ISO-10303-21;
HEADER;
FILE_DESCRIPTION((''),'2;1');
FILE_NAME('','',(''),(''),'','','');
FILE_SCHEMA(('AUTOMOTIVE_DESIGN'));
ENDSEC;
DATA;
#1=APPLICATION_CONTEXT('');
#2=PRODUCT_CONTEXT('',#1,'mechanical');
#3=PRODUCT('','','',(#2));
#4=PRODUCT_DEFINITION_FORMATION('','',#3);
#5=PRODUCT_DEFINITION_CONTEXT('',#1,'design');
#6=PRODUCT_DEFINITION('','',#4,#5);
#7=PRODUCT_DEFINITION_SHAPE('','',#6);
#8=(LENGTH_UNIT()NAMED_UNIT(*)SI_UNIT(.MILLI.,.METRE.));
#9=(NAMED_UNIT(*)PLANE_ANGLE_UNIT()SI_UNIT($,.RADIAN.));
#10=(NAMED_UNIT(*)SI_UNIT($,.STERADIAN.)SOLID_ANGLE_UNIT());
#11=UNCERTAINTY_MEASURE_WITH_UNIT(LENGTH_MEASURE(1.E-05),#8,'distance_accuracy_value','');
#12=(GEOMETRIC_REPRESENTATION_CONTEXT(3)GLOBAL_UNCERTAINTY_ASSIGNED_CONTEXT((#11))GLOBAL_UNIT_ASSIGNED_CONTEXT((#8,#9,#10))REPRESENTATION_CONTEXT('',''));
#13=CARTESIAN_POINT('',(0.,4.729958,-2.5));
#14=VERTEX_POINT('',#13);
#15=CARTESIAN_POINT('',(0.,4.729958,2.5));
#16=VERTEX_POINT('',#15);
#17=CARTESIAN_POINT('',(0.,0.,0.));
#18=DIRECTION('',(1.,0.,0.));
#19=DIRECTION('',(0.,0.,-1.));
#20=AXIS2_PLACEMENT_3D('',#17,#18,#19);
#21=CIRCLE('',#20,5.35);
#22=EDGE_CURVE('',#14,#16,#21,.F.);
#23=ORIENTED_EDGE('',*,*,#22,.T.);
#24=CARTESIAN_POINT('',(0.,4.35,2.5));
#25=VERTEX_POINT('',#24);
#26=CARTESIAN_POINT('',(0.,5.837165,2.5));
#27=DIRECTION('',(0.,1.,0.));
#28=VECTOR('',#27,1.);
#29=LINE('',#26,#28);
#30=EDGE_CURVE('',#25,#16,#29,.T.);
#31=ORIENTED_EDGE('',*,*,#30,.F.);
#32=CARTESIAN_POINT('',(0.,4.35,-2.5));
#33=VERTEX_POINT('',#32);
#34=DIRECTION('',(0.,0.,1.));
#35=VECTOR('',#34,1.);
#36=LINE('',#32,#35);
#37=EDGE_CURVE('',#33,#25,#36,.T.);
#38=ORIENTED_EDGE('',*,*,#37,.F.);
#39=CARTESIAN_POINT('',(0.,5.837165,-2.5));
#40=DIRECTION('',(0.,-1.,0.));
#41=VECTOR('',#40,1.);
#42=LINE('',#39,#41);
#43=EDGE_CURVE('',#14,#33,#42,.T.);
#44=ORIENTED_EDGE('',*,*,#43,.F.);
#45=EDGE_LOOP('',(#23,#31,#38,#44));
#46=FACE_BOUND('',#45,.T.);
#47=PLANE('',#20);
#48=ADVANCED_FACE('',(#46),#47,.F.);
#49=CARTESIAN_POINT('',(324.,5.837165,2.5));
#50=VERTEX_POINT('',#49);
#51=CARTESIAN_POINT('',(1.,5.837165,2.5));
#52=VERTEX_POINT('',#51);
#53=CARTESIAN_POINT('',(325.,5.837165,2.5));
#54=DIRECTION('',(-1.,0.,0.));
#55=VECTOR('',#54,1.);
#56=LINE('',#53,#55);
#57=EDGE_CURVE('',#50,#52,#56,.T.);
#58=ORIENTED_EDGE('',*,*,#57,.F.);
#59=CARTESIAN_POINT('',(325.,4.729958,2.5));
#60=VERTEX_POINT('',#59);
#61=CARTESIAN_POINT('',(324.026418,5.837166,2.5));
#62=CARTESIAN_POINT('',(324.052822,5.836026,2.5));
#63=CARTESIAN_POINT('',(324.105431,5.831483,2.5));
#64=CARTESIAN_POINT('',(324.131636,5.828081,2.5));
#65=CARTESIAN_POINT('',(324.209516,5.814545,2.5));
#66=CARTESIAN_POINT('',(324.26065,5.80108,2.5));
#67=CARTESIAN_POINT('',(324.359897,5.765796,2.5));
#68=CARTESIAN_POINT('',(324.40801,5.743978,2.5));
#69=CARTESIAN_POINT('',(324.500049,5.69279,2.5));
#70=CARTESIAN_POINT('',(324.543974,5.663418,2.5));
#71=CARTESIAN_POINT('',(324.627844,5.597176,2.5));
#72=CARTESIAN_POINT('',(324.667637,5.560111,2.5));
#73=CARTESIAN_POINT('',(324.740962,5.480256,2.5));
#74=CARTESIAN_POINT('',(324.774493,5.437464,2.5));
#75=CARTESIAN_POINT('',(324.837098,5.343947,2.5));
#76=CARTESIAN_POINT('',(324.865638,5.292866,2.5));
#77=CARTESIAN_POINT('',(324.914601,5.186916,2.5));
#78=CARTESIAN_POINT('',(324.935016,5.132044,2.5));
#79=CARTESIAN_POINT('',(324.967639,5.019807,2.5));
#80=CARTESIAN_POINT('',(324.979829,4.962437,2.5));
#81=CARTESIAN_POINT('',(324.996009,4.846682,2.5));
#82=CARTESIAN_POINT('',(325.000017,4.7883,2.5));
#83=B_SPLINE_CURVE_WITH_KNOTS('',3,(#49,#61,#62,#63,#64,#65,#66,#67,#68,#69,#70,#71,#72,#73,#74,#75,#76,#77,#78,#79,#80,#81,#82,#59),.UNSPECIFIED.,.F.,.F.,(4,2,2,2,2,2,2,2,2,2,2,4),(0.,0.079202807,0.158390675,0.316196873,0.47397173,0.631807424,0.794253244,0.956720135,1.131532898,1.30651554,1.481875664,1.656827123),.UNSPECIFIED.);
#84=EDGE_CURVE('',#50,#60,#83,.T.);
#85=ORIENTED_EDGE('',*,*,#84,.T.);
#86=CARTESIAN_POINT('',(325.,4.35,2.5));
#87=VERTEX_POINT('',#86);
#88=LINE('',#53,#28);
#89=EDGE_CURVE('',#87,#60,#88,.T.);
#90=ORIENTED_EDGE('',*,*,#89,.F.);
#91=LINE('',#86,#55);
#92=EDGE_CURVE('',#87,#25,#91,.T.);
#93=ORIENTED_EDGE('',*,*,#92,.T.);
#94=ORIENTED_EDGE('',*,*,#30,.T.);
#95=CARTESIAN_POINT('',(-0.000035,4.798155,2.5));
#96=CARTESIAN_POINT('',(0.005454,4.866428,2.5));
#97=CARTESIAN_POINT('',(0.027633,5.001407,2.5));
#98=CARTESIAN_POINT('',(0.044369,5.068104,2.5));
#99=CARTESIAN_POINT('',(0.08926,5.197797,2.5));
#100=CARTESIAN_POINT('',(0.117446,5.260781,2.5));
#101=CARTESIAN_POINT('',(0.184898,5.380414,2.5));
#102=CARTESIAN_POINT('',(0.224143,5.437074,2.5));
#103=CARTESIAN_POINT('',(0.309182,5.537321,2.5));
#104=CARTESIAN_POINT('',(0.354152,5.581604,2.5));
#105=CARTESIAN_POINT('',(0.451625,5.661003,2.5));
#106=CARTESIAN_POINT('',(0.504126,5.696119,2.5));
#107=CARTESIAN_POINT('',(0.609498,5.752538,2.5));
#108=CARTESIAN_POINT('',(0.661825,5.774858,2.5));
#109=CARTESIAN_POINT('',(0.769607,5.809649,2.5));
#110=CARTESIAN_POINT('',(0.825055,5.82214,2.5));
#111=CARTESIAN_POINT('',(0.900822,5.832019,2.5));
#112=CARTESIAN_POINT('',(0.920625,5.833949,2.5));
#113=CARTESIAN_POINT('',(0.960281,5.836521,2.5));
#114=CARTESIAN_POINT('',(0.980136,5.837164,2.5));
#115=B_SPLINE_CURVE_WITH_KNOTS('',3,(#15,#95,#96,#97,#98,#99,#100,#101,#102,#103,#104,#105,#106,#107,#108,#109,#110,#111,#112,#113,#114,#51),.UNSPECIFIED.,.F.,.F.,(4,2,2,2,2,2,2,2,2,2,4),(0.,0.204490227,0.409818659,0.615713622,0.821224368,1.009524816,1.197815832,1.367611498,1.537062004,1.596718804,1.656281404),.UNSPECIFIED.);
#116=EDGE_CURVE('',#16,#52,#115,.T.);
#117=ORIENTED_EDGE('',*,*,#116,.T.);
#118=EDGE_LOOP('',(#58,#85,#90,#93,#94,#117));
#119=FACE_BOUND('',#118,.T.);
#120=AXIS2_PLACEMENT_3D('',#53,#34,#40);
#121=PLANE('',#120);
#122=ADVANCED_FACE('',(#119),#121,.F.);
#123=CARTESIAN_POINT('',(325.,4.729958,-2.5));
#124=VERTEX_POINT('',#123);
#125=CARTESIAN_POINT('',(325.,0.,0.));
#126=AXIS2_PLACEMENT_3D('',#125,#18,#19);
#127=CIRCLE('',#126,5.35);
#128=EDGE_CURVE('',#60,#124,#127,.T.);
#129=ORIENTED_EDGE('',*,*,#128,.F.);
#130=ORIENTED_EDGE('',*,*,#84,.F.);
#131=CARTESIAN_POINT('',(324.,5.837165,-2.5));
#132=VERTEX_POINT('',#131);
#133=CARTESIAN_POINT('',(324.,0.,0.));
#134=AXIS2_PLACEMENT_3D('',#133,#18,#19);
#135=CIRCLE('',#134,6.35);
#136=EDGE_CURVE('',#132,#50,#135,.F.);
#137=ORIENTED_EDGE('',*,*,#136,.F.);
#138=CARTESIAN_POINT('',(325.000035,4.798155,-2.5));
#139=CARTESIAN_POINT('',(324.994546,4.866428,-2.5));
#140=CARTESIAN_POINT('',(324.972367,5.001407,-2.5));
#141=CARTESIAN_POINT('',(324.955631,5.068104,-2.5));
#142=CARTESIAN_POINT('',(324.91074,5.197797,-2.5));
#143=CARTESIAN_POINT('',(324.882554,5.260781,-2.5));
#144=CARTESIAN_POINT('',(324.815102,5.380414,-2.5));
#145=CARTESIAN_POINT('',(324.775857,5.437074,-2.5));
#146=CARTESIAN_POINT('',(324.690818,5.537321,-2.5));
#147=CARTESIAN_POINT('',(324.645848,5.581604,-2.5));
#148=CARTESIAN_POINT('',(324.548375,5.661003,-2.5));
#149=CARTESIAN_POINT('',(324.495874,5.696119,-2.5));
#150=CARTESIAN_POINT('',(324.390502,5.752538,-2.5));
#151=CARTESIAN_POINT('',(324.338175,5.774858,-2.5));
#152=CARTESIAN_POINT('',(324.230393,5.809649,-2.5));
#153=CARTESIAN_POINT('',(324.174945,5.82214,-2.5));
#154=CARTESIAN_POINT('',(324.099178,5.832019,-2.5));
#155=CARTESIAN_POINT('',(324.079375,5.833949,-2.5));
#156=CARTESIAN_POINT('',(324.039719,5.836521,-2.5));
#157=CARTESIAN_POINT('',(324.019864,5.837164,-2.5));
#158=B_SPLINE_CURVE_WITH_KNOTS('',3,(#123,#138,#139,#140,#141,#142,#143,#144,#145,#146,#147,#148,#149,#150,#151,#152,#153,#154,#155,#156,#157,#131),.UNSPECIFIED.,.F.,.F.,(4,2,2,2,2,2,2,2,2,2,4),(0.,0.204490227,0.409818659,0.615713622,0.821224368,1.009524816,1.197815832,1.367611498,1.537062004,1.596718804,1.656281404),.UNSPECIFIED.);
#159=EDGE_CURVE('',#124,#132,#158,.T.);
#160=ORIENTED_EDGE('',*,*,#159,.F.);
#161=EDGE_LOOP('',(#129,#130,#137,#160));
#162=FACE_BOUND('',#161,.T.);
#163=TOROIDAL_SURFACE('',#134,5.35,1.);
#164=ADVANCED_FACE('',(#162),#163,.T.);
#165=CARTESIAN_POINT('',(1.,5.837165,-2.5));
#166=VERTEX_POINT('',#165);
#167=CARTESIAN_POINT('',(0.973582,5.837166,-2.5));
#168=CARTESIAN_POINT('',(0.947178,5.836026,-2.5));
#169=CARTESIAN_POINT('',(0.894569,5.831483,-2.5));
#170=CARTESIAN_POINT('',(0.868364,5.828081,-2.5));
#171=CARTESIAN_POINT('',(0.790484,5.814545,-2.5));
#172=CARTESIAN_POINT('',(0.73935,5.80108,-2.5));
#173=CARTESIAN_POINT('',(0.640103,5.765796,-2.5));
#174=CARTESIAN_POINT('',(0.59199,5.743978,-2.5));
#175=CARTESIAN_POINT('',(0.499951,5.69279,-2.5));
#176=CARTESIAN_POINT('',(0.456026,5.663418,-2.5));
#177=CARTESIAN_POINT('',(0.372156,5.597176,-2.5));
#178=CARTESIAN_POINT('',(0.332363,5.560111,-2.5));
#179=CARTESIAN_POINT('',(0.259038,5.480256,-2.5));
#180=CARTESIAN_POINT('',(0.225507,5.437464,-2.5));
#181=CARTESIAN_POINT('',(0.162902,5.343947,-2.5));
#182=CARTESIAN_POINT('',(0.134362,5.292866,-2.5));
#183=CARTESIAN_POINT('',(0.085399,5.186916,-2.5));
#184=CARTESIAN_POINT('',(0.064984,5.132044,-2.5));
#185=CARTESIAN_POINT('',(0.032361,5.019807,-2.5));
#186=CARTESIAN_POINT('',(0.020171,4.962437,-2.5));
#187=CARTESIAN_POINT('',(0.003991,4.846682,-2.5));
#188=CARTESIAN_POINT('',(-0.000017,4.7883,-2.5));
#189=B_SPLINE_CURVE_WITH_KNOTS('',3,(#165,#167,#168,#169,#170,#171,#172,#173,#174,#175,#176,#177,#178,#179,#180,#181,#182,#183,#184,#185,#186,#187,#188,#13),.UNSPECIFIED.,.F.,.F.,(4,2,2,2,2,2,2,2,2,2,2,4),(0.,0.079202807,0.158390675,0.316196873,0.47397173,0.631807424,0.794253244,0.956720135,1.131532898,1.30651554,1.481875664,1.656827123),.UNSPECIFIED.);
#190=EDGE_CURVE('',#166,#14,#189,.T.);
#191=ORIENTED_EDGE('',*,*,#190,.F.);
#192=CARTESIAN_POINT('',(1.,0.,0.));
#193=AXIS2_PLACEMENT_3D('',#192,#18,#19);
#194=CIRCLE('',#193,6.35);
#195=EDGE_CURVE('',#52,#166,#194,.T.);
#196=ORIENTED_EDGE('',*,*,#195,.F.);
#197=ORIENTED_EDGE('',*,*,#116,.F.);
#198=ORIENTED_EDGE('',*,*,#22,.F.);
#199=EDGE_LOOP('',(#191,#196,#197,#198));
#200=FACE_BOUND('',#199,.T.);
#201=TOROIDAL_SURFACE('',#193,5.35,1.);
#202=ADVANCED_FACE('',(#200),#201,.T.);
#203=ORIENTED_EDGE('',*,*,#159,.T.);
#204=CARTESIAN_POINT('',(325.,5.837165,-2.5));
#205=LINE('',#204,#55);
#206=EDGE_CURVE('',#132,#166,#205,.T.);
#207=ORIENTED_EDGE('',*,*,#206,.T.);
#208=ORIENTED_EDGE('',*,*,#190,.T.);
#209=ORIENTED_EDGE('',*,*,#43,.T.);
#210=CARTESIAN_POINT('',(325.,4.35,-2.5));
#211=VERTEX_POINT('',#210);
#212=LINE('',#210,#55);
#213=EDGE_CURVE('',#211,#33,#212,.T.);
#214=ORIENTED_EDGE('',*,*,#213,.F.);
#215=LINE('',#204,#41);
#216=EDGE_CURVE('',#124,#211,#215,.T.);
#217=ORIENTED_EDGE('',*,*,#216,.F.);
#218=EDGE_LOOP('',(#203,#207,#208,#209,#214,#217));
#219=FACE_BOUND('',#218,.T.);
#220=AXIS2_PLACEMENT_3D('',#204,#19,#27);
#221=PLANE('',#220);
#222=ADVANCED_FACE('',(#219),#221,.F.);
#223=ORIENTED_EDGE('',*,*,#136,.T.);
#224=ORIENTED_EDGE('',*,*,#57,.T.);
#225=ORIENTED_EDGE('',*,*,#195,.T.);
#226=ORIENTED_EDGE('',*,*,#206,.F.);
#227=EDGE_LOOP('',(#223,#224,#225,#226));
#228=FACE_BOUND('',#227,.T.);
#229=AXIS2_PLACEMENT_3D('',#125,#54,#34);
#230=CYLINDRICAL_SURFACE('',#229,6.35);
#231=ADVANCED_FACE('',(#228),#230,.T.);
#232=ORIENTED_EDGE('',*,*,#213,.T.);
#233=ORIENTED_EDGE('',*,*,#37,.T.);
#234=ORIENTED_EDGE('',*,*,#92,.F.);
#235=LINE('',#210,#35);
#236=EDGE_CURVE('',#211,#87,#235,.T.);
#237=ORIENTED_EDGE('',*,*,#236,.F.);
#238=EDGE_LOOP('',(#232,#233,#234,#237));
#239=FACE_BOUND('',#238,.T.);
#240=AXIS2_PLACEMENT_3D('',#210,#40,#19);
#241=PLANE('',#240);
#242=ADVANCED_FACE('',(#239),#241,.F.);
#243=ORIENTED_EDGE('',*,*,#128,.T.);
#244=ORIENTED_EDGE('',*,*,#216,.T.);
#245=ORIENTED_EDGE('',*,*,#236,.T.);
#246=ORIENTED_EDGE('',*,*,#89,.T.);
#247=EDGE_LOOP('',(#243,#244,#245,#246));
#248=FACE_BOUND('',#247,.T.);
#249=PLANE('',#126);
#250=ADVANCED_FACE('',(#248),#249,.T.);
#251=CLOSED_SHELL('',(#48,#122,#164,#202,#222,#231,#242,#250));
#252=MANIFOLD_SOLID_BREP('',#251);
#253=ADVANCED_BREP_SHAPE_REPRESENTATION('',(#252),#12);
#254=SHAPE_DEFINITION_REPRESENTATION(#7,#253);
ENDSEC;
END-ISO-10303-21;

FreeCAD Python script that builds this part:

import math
import FreeCAD as App
import Part
import Sketcher


def edges_at(feature, points):
    """Names of the edges that pass closest to the given points."""
    edges = feature.Shape.Edges
    near = lambda p: min(range(len(edges)), key=lambda i: edges[i].distToShape(Part.Vertex(*p))[0])
    return sorted({f"Edge{near(p) + 1}" for p in points})

doc = App.newDocument("Part")
body = doc.addObject("PartDesign::Body", "Body")

# Sketch on YZ plane
sketch1 = body.newObject("Sketcher::SketchObject", "Sketch")
sketch1.AttachmentSupport = (doc.getObject("YZ_Plane"), [""])
sketch1.MapMode = "FlatFace"
sketch1.addGeometry([
    Part.LineSegment(App.Vector(5.8, -2.5, 0), App.Vector(4.3, -2.5, 0)),
    Part.LineSegment(App.Vector(4.3, -2.5, 0), App.Vector(4.3, 2.5, 0)),
    Part.LineSegment(App.Vector(4.3, 2.5, 0), App.Vector(5.8, 2.5, 0)),
    Part.ArcOfCircle(Part.Circle(App.Vector(0, 0, 0), App.Vector(0, 0, 1), 6.3), math.radians(23), math.radians(337)),
], False)
sketch1.addConstraint([
    Sketcher.Constraint("Coincident", 0, 2, 1, 1),
    Sketcher.Constraint("Coincident", 1, 2, 2, 1),
    Sketcher.Constraint("Coincident", 2, 2, 3, 1),
    Sketcher.Constraint("Coincident", 3, 2, 0, 1),
    Sketcher.Constraint("Horizontal", 0),
    Sketcher.Constraint("Vertical", 1),
    Sketcher.Constraint("Horizontal", 2),
    Sketcher.Constraint("Coincident", 3, 3, -1, 1),
    Sketcher.Constraint("Vertical", 2, 2, 3, 2),
    Sketcher.Constraint("DistanceY", 1, 1, 1, 2, 5.0),
    Sketcher.Constraint("Radius", 3, 6.35),
    Sketcher.Constraint("DistanceX", -1, 1, 0, 2, 4.35),
])
pad1 = body.newObject("PartDesign::Pad", "Pad")
pad1.Profile = sketch1
pad1.Length = 325
doc.recompute()

fillet = body.newObject("PartDesign::Fillet", "Fillet")
fillet.Base = (pad1, edges_at(pad1, [(0, -6.35, 0), (325, -6.35, 0)]))
fillet.Radius = 1

doc.recompute()
